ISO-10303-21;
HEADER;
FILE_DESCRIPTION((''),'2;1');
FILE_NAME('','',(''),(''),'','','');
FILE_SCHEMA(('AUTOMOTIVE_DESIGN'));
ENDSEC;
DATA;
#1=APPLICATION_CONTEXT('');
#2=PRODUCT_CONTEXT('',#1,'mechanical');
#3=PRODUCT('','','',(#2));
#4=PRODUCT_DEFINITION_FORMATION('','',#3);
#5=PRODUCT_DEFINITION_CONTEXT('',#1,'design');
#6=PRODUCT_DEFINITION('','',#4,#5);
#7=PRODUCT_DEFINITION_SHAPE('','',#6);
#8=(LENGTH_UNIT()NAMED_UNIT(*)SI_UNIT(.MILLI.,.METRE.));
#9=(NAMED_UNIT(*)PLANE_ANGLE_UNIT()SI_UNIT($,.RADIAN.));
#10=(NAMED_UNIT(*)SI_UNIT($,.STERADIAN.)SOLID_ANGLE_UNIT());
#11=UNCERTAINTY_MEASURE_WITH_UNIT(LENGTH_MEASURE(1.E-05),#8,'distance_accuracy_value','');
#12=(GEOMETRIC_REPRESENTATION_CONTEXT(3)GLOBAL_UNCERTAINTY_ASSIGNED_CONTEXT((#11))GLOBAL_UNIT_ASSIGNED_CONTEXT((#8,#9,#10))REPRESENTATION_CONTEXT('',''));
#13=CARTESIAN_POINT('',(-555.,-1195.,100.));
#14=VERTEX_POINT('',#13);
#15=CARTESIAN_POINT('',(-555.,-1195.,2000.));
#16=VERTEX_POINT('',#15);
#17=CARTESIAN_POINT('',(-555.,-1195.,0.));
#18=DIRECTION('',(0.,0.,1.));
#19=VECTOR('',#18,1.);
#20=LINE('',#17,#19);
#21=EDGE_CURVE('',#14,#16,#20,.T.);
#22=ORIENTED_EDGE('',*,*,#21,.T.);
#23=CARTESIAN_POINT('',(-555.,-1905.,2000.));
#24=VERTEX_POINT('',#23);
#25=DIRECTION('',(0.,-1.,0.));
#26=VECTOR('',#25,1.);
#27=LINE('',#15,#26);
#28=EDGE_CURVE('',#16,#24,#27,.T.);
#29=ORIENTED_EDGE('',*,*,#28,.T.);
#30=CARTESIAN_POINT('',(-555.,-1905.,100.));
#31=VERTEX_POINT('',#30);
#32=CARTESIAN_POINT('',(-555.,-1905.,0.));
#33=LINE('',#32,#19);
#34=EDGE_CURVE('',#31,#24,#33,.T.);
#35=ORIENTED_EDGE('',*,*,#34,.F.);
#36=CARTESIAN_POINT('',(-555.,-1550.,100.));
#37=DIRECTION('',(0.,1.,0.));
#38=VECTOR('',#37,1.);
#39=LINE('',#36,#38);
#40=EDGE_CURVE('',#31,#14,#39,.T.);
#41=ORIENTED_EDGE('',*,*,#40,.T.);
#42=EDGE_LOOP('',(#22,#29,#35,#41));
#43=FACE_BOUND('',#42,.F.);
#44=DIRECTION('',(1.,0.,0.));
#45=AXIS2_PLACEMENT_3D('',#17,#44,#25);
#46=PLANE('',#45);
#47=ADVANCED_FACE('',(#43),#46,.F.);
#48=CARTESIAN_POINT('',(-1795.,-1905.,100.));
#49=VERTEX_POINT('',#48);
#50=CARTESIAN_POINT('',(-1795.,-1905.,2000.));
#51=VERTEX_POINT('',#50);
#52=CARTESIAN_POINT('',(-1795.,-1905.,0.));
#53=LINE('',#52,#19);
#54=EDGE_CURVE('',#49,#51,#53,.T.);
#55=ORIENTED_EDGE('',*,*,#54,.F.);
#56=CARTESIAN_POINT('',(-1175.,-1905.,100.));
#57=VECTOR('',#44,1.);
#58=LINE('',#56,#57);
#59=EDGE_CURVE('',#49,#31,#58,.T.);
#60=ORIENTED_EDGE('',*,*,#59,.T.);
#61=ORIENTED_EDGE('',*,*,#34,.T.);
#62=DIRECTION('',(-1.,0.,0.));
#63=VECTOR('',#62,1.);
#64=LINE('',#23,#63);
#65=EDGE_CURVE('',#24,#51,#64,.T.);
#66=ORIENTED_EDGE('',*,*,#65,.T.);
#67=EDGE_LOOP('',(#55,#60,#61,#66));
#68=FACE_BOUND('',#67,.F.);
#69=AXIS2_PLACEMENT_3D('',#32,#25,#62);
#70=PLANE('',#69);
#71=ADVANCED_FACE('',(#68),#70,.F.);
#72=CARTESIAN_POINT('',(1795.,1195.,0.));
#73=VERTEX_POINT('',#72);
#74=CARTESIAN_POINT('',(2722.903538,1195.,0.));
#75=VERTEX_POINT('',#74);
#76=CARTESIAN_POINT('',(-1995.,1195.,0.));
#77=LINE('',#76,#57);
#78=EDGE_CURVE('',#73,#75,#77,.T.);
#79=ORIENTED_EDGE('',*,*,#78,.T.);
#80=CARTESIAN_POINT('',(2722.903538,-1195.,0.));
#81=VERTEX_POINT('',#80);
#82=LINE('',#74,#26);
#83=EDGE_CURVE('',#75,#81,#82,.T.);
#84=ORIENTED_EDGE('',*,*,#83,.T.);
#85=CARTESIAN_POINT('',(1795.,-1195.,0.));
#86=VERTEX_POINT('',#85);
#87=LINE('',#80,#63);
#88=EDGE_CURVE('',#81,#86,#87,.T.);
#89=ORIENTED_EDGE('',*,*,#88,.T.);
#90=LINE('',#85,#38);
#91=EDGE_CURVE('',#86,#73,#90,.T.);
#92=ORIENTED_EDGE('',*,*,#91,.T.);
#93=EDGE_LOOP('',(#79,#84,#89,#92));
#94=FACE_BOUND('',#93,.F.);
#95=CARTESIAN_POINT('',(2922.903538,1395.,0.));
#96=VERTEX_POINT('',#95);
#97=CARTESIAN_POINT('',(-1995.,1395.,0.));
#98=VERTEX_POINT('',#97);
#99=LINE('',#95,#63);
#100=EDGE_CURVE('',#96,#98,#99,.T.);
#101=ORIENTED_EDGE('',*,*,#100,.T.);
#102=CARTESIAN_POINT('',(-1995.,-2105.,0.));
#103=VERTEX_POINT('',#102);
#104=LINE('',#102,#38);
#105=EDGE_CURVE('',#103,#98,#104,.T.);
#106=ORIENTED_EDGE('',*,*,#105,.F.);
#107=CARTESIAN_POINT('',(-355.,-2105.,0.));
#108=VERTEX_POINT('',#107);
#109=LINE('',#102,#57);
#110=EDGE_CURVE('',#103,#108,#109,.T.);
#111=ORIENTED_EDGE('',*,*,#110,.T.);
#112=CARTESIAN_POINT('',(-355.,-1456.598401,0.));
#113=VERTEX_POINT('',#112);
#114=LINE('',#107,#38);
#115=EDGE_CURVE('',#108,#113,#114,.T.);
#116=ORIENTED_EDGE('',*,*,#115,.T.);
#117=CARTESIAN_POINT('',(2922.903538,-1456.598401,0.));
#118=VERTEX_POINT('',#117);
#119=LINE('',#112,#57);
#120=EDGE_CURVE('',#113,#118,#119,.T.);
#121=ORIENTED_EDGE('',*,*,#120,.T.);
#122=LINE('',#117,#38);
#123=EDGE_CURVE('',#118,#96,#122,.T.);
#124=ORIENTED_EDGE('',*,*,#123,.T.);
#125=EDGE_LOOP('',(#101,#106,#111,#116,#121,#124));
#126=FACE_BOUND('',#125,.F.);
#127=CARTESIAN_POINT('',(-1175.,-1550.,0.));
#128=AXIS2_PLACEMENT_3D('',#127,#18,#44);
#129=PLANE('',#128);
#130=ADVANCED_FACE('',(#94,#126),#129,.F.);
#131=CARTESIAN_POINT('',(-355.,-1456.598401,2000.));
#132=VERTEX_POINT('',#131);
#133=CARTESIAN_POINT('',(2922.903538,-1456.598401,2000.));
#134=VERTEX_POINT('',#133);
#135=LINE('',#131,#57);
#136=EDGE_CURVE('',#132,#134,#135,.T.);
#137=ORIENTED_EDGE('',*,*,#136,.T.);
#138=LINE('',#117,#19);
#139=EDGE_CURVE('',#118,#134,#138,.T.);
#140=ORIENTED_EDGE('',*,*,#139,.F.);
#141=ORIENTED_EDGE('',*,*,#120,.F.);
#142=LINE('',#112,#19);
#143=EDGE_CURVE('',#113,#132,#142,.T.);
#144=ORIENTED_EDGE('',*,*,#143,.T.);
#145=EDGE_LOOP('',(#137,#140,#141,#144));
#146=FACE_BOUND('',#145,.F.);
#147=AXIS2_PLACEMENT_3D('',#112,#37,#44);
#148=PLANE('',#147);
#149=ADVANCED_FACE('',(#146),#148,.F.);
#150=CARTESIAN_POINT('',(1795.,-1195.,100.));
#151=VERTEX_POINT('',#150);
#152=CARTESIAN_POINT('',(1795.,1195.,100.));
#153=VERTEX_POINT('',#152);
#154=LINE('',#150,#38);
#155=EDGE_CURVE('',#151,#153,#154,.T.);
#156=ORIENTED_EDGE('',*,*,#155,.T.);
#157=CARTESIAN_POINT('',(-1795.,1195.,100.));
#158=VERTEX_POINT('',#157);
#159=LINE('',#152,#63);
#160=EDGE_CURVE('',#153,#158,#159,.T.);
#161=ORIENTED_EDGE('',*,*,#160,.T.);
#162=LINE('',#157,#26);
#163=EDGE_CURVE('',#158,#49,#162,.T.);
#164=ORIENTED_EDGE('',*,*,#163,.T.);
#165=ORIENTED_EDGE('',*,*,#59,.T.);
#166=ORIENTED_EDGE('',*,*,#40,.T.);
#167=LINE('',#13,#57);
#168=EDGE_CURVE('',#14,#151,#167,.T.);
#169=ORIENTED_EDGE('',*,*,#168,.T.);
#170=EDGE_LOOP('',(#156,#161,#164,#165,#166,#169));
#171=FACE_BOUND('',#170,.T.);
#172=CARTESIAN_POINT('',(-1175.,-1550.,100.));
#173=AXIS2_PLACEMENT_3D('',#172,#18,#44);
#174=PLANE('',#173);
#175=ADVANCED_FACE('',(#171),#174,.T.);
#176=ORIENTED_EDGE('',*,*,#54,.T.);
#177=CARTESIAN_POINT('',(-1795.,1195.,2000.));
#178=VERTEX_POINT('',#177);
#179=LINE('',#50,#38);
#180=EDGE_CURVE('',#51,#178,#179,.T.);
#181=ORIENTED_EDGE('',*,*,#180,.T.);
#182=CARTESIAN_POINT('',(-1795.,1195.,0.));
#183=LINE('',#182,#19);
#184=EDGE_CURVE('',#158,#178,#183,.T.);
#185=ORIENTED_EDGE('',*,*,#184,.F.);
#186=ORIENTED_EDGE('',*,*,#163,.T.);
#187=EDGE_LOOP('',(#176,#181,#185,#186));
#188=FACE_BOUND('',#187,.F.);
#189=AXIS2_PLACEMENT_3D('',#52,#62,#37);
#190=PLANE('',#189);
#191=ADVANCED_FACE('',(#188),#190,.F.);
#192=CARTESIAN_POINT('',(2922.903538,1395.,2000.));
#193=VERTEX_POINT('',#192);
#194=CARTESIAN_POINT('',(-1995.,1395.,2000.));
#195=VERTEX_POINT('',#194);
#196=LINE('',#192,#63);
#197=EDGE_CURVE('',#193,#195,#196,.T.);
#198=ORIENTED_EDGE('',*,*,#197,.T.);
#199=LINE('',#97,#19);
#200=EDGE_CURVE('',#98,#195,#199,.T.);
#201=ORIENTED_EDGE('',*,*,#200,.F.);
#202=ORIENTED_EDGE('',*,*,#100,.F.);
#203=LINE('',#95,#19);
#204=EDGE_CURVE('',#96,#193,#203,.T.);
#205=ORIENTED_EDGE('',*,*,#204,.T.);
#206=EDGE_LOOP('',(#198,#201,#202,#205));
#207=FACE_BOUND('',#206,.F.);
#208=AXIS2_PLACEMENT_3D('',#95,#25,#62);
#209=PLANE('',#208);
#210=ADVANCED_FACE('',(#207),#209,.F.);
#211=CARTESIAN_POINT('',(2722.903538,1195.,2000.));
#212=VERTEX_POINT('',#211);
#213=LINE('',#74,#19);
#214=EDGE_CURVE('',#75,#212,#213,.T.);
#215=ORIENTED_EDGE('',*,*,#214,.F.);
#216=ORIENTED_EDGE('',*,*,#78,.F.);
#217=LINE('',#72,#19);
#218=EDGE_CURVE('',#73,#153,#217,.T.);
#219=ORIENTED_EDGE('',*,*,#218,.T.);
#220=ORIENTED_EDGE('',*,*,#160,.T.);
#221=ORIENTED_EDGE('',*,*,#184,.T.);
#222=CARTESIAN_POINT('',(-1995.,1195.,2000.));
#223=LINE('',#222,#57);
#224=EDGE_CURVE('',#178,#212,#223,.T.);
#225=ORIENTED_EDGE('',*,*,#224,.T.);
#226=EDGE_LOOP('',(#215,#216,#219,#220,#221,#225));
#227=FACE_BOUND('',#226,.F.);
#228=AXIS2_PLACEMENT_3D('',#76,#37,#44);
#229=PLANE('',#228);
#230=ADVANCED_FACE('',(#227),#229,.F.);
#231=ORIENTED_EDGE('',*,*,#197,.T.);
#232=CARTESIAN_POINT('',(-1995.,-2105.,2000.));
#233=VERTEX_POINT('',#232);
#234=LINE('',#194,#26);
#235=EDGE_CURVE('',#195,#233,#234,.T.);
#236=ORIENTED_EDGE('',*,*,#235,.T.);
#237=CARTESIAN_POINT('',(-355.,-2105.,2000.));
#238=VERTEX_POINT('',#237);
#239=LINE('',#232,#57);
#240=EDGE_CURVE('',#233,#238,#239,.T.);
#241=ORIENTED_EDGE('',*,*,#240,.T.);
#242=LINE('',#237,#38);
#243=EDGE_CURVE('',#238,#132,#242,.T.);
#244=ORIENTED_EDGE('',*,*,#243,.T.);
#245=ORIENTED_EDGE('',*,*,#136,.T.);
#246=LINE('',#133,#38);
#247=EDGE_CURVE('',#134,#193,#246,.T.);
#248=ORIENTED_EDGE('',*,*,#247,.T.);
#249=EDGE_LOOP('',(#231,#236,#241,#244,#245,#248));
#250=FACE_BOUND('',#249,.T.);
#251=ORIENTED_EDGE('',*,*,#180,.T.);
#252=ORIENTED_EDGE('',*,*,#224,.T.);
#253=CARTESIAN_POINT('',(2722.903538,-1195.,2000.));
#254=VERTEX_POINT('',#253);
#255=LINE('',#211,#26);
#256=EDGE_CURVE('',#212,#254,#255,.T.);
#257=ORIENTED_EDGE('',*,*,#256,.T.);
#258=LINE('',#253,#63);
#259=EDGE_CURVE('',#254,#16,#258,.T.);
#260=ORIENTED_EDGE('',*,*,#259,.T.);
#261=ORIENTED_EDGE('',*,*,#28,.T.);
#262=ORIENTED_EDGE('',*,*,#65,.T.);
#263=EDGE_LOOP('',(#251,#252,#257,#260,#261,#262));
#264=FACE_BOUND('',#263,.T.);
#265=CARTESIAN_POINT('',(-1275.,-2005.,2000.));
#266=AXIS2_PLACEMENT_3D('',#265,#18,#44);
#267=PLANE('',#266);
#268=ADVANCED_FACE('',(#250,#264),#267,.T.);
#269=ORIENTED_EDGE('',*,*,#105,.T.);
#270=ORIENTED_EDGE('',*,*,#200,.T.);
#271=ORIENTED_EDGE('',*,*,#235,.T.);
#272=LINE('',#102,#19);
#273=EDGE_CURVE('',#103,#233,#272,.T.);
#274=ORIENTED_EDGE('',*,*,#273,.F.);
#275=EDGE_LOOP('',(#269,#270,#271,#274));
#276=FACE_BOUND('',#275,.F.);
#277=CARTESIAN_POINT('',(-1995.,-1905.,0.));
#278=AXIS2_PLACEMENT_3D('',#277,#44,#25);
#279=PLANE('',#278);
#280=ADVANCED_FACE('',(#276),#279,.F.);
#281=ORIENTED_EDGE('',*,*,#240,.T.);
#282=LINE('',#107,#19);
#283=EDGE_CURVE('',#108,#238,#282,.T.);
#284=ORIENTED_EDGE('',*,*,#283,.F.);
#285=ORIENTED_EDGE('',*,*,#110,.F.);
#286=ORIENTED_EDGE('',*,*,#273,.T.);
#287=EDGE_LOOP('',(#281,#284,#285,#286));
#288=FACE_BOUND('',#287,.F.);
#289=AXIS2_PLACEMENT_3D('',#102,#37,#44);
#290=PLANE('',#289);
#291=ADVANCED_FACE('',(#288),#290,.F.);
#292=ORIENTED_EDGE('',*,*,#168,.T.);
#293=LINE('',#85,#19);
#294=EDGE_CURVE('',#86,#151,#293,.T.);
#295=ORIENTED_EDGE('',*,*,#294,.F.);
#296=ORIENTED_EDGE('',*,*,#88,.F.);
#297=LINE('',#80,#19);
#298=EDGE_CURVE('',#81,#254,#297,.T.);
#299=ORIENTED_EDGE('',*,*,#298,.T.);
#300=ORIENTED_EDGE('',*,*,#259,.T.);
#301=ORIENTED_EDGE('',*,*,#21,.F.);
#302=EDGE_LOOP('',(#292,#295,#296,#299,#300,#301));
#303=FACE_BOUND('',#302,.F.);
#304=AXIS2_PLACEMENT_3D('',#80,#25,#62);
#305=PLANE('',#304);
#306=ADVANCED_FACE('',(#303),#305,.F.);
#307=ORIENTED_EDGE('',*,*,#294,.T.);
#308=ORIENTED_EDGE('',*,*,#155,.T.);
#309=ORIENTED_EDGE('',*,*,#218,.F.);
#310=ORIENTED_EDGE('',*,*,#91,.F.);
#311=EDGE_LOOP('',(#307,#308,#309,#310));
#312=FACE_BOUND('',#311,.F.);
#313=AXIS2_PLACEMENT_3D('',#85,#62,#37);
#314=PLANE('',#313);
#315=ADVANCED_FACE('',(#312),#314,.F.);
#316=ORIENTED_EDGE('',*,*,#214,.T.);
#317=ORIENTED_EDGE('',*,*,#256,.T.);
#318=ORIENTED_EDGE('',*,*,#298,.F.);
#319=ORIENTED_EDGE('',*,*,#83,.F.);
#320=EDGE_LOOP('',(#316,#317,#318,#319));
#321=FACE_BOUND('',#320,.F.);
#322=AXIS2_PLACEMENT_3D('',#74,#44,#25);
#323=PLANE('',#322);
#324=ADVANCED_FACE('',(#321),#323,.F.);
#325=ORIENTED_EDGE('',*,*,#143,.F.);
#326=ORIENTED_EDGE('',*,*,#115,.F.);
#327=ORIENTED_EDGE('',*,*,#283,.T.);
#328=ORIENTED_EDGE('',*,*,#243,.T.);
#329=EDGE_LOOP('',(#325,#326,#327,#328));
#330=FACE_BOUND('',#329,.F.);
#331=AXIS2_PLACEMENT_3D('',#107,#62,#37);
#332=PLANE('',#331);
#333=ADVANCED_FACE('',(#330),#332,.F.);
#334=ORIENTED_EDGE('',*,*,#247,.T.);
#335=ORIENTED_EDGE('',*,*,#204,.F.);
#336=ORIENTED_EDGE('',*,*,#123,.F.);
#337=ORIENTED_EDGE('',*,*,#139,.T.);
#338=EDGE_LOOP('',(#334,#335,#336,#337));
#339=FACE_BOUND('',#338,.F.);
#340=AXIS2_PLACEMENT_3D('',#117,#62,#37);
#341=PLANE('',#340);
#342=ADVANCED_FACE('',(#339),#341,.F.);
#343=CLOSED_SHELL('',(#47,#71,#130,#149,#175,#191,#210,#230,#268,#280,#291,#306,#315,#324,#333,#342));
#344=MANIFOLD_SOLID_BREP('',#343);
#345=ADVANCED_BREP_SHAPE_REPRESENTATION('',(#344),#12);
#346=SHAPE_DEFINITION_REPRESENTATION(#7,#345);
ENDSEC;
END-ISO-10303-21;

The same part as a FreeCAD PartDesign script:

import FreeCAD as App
import Part
import Sketcher

V = App.Vector

doc = App.newDocument("Part")
body = doc.addObject("PartDesign::Body", "Body")

# Sketch on XY plane
sketch1 = doc.addObject("Sketcher::SketchObject", "Sketch")
body.addObject(sketch1)
sketch1.AttachmentSupport = (doc.XY_Plane, [""])
sketch1.MapMode = "FlatFace"
sketch1.addGeometry([
    Part.LineSegment(V(-1795, 1195, 0), V(-1995, 1195, 0)),
    Part.LineSegment(V(-1995, 1195, 0), V(-1995, -1905, 0)),
    Part.LineSegment(V(-1995, -1905, 0), V(-1795, -1905, 0)),
    Part.LineSegment(V(-1795, -1905, 0), V(-1795, 1195, 0)),
], False)
sketch1.addConstraint([
    Sketcher.Constraint("Coincident", 0, 2, 1, 1),
    Sketcher.Constraint("Coincident", 1, 2, 2, 1),
    Sketcher.Constraint("Coincident", 2, 2, 3, 1),
    Sketcher.Constraint("Coincident", 3, 2, 0, 1),
    Sketcher.Constraint("Horizontal", 0),
    Sketcher.Constraint("Vertical", 1),
    Sketcher.Constraint("Horizontal", 2),
    Sketcher.Constraint("Vertical", 3),
    Sketcher.Constraint("DistanceX", 0, 2, 0, 1, 200.0),
    Sketcher.Constraint("DistanceY", 1, 2, 1, 1, 3100.0),
    Sketcher.Constraint("DistanceX", 0, 2, -1, 1, 1995.0),
    Sketcher.Constraint("DistanceY", -1, 1, 0, 2, 1195.0),
])
pad1 = doc.addObject("PartDesign::Pad", "Pad")
body.addObject(pad1)
pad1.Profile = sketch1
pad1.Length = 2000

# Sketch on XY plane
sketch2 = doc.addObject("Sketcher::SketchObject", "Sketch001")
body.addObject(sketch2)
sketch2.AttachmentSupport = (doc.XY_Plane, [""])
sketch2.MapMode = "FlatFace"
sketch2.addGeometry([
    Part.LineSegment(V(-555, -1905, 0), V(-1995, -1905, 0)),  # 0
    Part.LineSegment(V(-1995, -1905, 0), V(-1995, -2105, 0)),  # 1
    Part.LineSegment(V(-1995, -2105, 0), V(-355, -2105, 0)),  # 2
    Part.LineSegment(V(-355, -2105, 0), V(-355, -1457, 0)),  # 3
    Part.LineSegment(V(-355, -1457, 0), V(2923, -1457, 0)),  # 4
    Part.LineSegment(V(2923, -1457, 0), V(2923, 1395, 0)),  # 5
    Part.LineSegment(V(2923, 1395, 0), V(-1995, 1395, 0)),  # 6
    Part.LineSegment(V(-1995, 1395, 0), V(-1995, 1195, 0)),  # 7
    Part.LineSegment(V(-1995, 1195, 0), V(2723, 1195, 0)),  # 8
    Part.LineSegment(V(2723, 1195, 0), V(2723, -1195, 0)),  # 9
    Part.LineSegment(V(2723, -1195, 0), V(-555, -1195, 0)),  # 10
    Part.LineSegment(V(-555, -1195, 0), V(-555, -1905, 0)),  # 11
], False)
sketch2.addConstraint([
    Sketcher.Constraint("Coincident", 0, 2, 1, 1),
    Sketcher.Constraint("Coincident", 1, 2, 2, 1),
    Sketcher.Constraint("Coincident", 2, 2, 3, 1),
    Sketcher.Constraint("Coincident", 3, 2, 4, 1),
    Sketcher.Constraint("Coincident", 4, 2, 5, 1),
    Sketcher.Constraint("Coincident", 5, 2, 6, 1),
    Sketcher.Constraint("Coincident", 6, 2, 7, 1),
    Sketcher.Constraint("Coincident", 7, 2, 8, 1),
    Sketcher.Constraint("Coincident", 8, 2, 9, 1),
    Sketcher.Constraint("Coincident", 9, 2, 10, 1),
    Sketcher.Constraint("Coincident", 10, 2, 11, 1),
    Sketcher.Constraint("Coincident", 11, 2, 0, 1),
    Sketcher.Constraint("Horizontal", 0),
    Sketcher.Constraint("Vertical", 1),
    Sketcher.Constraint("Horizontal", 2),
    Sketcher.Constraint("Vertical", 3),
    Sketcher.Constraint("Horizontal", 4),
    Sketcher.Constraint("Vertical", 5),
    Sketcher.Constraint("Horizontal", 6),
    Sketcher.Constraint("Vertical", 7),
    Sketcher.Constraint("Horizontal", 8),
    Sketcher.Constraint("Vertical", 9),
    Sketcher.Constraint("Horizontal", 10),
    Sketcher.Constraint("Vertical", 11),
    Sketcher.Constraint("Vertical", 1, 2, 6, 2),
    Sketcher.Constraint("Equal", 4, 10),
    Sketcher.Constraint("Equal", 1, 7),
    Sketcher.Constraint("DistanceX", 0, 2, 0, 1, 1440.0),
    Sketcher.Constraint("DistanceX", 2, 1, 2, 2, 1640.0),
    Sketcher.Constraint("DistanceY", 1, 2, 1, 1, 200.0),
    Sketcher.Constraint("DistanceY", 9, 2, 9, 1, 2390.0),
    Sketcher.Constraint("DistanceY", 11, 2, 11, 1, 710.0),
    Sketcher.Constraint("DistanceX", 0, 2, -1, 1, 1995.0),
    Sketcher.Constraint("DistanceY", 0, 2, -1, 1, 1905.0),
    Sketcher.Constraint("DistanceY", 3, 1, 3, 2, 648.401599),
    Sketcher.Constraint("DistanceX", 4, 1, 4, 2, 3277.903538),
])
pad2 = doc.addObject("PartDesign::Pad", "Pad001")
body.addObject(pad2)
pad2.Profile = sketch2
pad2.Length = 2000

# Sketch on XY plane
sketch3 = doc.addObject("Sketcher::SketchObject", "Sketch002")
body.addObject(sketch3)
sketch3.AttachmentSupport = (doc.XY_Plane, [""])
sketch3.MapMode = "FlatFace"
sketch3.addGeometry([
    Part.LineSegment(V(-1795, -1905, 0), V(-555, -1905, 0)),  # 0
    Part.LineSegment(V(-555, -1905, 0), V(-555, -1195, 0)),  # 1
    Part.LineSegment(V(-555, -1195, 0), V(1795, -1195, 0)),  # 2
    Part.LineSegment(V(1795, -1195, 0), V(1795, 1195, 0)),  # 3
    Part.LineSegment(V(1795, 1195, 0), V(-1795, 1195, 0)),  # 4
    Part.LineSegment(V(-1795, 1195, 0), V(-1795, -1905, 0)),  # 5
], False)
sketch3.addConstraint([
    Sketcher.Constraint("Coincident", 0, 2, 1, 1),
    Sketcher.Constraint("Coincident", 1, 2, 2, 1),
    Sketcher.Constraint("Coincident", 2, 2, 3, 1),
    Sketcher.Constraint("Coincident", 3, 2, 4, 1),
    Sketcher.Constraint("Coincident", 4, 2, 5, 1),
    Sketcher.Constraint("Coincident", 5, 2, 0, 1),
    Sketcher.Constraint("Horizontal", 0),
    Sketcher.Constraint("Vertical", 1),
    Sketcher.Constraint("Horizontal", 2),
    Sketcher.Constraint("Vertical", 3),
    Sketcher.Constraint("Horizontal", 4),
    Sketcher.Constraint("Vertical", 5),
    Sketcher.Constraint("Symmetric", 2, 2, 4, 2, -1, 1),
    Sketcher.Constraint("DistanceX", 0, 1, 0, 2, 1240.0),
    Sketcher.Constraint("DistanceX", 2, 1, 2, 2, 2350.0),
    Sketcher.Constraint("DistanceY", 1, 1, 1, 2, 710.0),
    Sketcher.Constraint("DistanceY", 3, 1, 3, 2, 2390.0),
])
pad3 = doc.addObject("PartDesign::Pad", "Pad002")
body.addObject(pad3)
pad3.Profile = sketch3
pad3.Length = 100

doc.recompute()
